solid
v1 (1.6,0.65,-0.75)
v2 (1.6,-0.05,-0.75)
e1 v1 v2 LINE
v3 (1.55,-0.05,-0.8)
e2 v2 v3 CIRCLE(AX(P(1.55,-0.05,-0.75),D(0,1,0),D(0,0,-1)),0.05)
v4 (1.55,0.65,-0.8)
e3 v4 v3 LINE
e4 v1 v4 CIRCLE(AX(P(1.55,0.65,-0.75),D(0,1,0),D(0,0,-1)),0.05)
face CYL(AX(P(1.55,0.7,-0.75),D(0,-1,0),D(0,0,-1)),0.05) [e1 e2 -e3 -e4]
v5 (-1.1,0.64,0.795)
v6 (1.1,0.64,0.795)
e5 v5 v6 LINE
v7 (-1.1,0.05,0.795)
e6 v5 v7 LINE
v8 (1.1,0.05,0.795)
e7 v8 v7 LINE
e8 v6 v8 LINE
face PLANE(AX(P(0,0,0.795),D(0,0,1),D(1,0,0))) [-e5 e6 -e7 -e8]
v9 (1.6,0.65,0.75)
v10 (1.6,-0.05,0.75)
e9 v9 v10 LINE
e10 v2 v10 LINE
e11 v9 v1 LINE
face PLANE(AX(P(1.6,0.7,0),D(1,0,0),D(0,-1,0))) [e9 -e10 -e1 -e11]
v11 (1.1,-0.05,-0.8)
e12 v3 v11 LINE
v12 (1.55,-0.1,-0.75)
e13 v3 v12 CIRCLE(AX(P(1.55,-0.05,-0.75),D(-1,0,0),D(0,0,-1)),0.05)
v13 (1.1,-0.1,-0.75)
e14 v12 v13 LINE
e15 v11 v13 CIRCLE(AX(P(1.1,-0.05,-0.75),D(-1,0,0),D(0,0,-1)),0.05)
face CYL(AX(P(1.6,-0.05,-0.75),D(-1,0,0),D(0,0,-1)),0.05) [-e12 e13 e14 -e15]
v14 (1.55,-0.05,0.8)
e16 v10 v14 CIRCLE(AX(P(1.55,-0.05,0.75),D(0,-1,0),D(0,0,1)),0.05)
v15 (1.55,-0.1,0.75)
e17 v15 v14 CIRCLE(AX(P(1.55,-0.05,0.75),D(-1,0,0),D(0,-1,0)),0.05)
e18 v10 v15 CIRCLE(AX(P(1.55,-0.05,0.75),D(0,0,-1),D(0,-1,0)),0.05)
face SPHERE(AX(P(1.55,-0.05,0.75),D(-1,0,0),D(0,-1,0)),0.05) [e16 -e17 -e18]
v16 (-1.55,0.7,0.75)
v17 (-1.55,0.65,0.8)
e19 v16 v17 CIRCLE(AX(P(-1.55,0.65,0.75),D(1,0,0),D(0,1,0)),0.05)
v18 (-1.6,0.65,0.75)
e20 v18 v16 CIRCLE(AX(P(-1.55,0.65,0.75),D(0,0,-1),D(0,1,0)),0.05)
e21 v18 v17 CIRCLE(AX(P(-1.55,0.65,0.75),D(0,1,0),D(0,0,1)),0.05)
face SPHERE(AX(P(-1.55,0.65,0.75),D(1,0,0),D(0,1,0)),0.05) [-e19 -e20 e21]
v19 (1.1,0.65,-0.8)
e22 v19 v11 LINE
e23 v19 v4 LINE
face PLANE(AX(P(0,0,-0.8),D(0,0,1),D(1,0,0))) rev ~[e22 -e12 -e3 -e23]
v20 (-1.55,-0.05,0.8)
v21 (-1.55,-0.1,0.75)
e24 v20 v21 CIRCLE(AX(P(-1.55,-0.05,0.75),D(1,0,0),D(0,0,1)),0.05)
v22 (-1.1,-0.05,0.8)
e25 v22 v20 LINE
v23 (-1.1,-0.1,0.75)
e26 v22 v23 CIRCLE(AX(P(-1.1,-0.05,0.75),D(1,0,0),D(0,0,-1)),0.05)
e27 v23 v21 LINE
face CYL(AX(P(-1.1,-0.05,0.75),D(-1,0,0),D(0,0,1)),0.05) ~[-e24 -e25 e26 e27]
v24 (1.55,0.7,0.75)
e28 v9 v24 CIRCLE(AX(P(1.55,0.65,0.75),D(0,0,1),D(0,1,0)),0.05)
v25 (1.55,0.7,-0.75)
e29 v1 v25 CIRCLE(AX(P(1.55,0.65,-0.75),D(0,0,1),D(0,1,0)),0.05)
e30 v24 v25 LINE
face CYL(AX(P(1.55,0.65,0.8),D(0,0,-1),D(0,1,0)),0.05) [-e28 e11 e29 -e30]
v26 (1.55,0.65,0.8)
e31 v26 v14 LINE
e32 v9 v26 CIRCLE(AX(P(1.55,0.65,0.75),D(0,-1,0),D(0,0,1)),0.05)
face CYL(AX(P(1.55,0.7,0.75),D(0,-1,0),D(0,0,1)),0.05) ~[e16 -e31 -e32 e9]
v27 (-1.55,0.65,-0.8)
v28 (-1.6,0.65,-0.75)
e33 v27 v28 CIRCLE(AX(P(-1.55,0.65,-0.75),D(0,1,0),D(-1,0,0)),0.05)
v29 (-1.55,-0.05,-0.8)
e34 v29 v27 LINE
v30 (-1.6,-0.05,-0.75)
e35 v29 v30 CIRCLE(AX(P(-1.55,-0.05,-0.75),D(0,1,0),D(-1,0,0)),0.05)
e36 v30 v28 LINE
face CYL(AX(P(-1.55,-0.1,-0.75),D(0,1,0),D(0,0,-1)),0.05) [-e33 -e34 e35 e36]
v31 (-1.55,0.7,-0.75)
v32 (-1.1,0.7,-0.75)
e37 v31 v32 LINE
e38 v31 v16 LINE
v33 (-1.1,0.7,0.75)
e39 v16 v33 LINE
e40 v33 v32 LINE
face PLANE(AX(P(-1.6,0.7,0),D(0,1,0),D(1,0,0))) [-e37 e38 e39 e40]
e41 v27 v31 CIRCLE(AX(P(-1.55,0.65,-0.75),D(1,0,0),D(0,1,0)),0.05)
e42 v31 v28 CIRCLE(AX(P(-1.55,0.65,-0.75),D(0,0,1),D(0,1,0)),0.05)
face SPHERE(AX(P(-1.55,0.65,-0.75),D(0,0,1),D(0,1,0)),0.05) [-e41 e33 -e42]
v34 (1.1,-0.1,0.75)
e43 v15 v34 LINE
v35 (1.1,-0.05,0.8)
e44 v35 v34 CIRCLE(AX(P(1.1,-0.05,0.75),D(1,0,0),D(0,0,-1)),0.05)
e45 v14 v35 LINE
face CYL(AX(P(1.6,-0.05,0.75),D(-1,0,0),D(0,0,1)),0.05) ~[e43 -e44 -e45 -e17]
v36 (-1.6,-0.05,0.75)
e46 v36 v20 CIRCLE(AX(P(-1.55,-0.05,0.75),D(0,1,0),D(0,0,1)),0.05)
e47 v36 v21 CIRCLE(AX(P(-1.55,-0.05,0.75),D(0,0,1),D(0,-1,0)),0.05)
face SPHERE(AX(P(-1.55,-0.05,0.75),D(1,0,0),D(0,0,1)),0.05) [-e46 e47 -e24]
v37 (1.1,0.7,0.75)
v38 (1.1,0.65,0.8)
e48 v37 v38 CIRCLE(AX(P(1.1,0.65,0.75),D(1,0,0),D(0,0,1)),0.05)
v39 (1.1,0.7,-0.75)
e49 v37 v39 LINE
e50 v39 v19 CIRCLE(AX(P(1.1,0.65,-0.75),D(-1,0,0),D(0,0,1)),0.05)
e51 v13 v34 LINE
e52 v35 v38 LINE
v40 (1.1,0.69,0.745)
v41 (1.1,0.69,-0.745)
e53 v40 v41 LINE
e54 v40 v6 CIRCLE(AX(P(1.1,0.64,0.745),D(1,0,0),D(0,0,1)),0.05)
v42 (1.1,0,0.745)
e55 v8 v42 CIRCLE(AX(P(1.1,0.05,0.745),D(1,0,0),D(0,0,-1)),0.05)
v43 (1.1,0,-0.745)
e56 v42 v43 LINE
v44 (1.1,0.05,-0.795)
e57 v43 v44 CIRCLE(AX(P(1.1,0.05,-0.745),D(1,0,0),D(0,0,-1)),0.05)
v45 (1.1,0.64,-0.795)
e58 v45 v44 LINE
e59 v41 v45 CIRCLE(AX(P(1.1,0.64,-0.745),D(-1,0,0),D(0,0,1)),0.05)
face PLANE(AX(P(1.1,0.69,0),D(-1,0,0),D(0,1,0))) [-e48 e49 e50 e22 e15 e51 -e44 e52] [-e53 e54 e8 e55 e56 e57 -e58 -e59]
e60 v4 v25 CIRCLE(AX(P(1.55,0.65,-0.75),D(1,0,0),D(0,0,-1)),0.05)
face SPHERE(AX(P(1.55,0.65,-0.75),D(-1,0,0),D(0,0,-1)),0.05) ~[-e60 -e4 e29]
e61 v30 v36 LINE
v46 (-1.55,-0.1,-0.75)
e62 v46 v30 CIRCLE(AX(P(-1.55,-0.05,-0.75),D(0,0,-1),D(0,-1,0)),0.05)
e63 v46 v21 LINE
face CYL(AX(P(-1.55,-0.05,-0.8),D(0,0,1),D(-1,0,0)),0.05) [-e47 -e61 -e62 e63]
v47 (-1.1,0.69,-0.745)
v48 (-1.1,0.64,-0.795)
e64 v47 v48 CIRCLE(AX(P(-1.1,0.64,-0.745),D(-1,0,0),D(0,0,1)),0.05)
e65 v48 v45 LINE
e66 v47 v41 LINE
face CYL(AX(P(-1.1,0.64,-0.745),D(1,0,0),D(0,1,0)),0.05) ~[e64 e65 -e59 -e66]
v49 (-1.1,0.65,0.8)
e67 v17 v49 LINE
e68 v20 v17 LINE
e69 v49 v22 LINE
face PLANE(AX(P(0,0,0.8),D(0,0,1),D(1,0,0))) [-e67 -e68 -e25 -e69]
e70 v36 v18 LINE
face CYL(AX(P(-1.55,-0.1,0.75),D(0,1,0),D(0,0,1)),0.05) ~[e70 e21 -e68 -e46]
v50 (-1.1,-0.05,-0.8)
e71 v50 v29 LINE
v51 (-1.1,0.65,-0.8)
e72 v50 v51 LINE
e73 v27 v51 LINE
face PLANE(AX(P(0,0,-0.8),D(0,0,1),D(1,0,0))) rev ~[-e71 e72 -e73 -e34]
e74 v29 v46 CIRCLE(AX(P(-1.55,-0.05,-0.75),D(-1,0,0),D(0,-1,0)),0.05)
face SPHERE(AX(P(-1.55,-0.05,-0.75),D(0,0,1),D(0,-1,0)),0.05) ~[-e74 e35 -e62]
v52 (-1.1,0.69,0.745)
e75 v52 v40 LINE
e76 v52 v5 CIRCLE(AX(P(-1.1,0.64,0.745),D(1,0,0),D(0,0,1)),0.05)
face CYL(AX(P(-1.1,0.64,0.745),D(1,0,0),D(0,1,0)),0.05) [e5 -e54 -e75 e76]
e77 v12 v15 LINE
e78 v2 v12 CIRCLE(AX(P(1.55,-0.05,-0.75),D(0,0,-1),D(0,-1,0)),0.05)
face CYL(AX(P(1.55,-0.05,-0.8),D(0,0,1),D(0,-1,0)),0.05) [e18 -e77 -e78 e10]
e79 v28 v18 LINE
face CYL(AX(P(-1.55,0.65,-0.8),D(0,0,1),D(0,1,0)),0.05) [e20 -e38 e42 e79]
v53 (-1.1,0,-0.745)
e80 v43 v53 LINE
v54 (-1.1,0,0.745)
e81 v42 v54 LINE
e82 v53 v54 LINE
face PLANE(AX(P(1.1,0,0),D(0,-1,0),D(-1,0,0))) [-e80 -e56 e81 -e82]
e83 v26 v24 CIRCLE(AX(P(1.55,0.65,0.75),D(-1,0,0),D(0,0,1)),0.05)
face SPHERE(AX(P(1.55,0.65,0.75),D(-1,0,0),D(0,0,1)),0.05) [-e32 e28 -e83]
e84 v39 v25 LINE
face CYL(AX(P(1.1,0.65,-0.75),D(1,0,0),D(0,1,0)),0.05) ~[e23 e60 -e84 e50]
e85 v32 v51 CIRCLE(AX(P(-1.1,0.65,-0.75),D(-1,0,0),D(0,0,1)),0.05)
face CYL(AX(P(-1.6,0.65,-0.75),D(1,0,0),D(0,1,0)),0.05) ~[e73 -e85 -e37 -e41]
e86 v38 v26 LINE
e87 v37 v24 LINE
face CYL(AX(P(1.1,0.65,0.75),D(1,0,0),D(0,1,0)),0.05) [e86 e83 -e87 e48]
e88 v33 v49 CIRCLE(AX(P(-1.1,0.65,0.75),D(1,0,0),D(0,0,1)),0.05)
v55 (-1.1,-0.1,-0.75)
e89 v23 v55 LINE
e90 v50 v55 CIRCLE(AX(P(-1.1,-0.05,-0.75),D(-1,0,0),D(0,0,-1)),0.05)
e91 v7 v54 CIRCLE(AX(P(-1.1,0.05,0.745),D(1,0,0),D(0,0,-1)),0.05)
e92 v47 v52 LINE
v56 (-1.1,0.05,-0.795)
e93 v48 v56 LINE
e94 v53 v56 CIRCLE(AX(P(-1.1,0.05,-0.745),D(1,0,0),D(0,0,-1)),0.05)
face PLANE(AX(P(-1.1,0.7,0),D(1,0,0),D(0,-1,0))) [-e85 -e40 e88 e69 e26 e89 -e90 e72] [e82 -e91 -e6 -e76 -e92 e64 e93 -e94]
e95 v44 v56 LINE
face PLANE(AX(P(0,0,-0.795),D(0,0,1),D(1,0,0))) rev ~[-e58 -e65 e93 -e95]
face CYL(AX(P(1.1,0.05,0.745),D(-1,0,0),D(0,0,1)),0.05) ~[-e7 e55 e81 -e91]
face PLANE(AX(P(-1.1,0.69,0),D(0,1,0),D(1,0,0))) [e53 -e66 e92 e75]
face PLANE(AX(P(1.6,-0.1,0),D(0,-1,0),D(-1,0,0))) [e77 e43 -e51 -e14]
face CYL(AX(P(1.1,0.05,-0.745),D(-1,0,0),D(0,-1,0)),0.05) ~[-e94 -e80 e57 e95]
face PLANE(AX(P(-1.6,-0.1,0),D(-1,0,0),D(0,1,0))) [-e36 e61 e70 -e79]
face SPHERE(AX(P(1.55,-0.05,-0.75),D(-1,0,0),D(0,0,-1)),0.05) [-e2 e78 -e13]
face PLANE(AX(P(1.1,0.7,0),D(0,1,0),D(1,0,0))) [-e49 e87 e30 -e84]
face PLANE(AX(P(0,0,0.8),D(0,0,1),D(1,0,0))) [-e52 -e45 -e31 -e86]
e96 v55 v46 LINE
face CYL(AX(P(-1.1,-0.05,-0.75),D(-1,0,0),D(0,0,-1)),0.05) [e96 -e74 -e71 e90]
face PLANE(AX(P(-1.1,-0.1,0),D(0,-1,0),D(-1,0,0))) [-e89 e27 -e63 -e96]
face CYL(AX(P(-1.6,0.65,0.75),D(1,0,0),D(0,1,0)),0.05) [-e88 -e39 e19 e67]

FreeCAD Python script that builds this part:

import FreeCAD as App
import Part
import Sketcher

V = App.Vector


def edges_at(feature, points):
    """Names of the edges that pass closest to the given points."""
    edges = feature.Shape.Edges
    near = lambda p: min(range(len(edges)), key=lambda i: edges[i].distToShape(Part.Vertex(*p))[0])
    return sorted({f"Edge{near(p) + 1}" for p in points})

doc = App.newDocument("Part")
body = doc.addObject("PartDesign::Body", "Body")
body.AllowCompound = True

sketch1 = body.newObject("Sketcher::SketchObject", "Sketch")
sketch1.AttachmentSupport = (doc.getObject("XY_Plane"), [""])
sketch1.MapMode = "FlatFace"
sketch1.addGeometry([
    Part.LineSegment(V(-1.1, 0.7, 0), V(-1.6, 0.7, 0)),
    Part.LineSegment(V(-1.6, 0.7, 0), V(-1.6, -0.1, 0)),
    Part.LineSegment(V(-1.6, -0.1, 0), V(-1.1, -0.1, 0)),
    Part.LineSegment(V(-1.1, -0.1, 0), V(-1.1, 0.7, 0)),
    Part.LineSegment(V(1.1, 0.7, 0), V(1.1, -0.1, 0)),
    Part.LineSegment(V(1.1, -0.1, 0), V(1.6, -0.1, 0)),
    Part.LineSegment(V(1.6, -0.1, 0), V(1.6, 0.7, 0)),
    Part.LineSegment(V(1.6, 0.7, 0), V(1.1, 0.7, 0)),
], False)
sketch1.addConstraint([
    Sketcher.Constraint("Coincident", 0, 2, 1, 1),
    Sketcher.Constraint("Coincident", 1, 2, 2, 1),
    Sketcher.Constraint("Coincident", 2, 2, 3, 1),
    Sketcher.Constraint("Coincident", 3, 2, 0, 1),
    Sketcher.Constraint("Coincident", 4, 2, 5, 1),
    Sketcher.Constraint("Coincident", 5, 2, 6, 1),
    Sketcher.Constraint("Coincident", 6, 2, 7, 1),
    Sketcher.Constraint("Coincident", 7, 2, 4, 1),
    Sketcher.Constraint("Horizontal", 0),
    Sketcher.Constraint("Vertical", 1),
    Sketcher.Constraint("Horizontal", 2),
    Sketcher.Constraint("Vertical", 3),
    Sketcher.Constraint("Vertical", 4),
    Sketcher.Constraint("Horizontal", 5),
    Sketcher.Constraint("Vertical", 6),
    Sketcher.Constraint("Horizontal", 7),
    Sketcher.Constraint("Symmetric", 2, 2, 4, 2, -2),
    Sketcher.Constraint("Symmetric", 0, 2, 6, 2, -2),
    Sketcher.Constraint("DistanceX", 0, 2, 0, 1, 0.5),
    Sketcher.Constraint("DistanceY", 1, 2, 1, 1, 0.8),
    Sketcher.Constraint("DistanceY", 1, 2, -1, 1, 0.1),
    Sketcher.Constraint("DistanceX", 1, 2, 5, 2, 3.2),
])
pad1 = body.newObject("PartDesign::Pad", "Pad")
pad1.Profile = sketch1
pad1.Length = 1.6
pad1.Midplane = True

sketch2 = body.newObject("Sketcher::SketchObject", "Sketch001")
sketch2.AttachmentSupport = (doc.getObject("XY_Plane"), [""])
sketch2.MapMode = "FlatFace"
sketch2.addGeometry([
    Part.LineSegment(V(1.1, 0.7, 0), V(-1.1, 0.7, 0)),
    Part.LineSegment(V(-1.1, 0.7, 0), V(-1.1, 0, 0)),
    Part.LineSegment(V(-1.1, 0, 0), V(1.1, 0, 0)),
    Part.LineSegment(V(1.1, 0, 0), V(1.1, 0.7, 0)),
], False)
sketch2.addConstraint([
    Sketcher.Constraint("Coincident", 0, 2, 1, 1),
    Sketcher.Constraint("Coincident", 1, 2, 2, 1),
    Sketcher.Constraint("Coincident", 2, 2, 3, 1),
    Sketcher.Constraint("Coincident", 3, 2, 0, 1),
    Sketcher.Constraint("Horizontal", 0),
    Sketcher.Constraint("Vertical", 1),
    Sketcher.Constraint("Horizontal", 2),
    Sketcher.Constraint("Vertical", 3),
    Sketcher.Constraint("Symmetric", 1, 2, 2, 2, -1, 1),
    Sketcher.Constraint("DistanceX", 0, 2, 0, 1, 2.2),
    Sketcher.Constraint("DistanceY", 1, 2, 1, 1, 0.69),
])
pad2 = body.newObject("PartDesign::Pad", "Pad001")
pad2.Profile = sketch2
pad2.Length = 1.59
pad2.Midplane = True
doc.recompute()

fillet = body.newObject("PartDesign::Fillet", "Fillet")
fillet.Base = (pad2, edges_at(pad2, [
    (0, 0.69, 0.795),
    (0, 0, 0.795),
    (0, 0.69, -0.795),
    (0, 0, -0.795),
    (-1.35, 0.7, 0.8),
    (-1.35, -0.1, 0.8),
    (1.35, -0.1, 0.8),
    (1.35, 0.7, 0.8),
    (1.35, 0.7, -0.8),
    (1.35, -0.1, -0.8),
    (1.6, 0.3, -0.8),
    (1.6, -0.1, 0),
    (1.6, 0.3, 0.8),
    (1.6, 0.7, 0),
    (-1.6, 0.7, 0),
    (-1.6, 0.3, 0.8),
    (-1.6, -0.1, 0),
    (-1.35, 0.7, -0.8),
    (-1.35, -0.1, -0.8),
    (-1.6, 0.3, -0.8),
]))
fillet.Radius = 0.05

doc.recompute()
